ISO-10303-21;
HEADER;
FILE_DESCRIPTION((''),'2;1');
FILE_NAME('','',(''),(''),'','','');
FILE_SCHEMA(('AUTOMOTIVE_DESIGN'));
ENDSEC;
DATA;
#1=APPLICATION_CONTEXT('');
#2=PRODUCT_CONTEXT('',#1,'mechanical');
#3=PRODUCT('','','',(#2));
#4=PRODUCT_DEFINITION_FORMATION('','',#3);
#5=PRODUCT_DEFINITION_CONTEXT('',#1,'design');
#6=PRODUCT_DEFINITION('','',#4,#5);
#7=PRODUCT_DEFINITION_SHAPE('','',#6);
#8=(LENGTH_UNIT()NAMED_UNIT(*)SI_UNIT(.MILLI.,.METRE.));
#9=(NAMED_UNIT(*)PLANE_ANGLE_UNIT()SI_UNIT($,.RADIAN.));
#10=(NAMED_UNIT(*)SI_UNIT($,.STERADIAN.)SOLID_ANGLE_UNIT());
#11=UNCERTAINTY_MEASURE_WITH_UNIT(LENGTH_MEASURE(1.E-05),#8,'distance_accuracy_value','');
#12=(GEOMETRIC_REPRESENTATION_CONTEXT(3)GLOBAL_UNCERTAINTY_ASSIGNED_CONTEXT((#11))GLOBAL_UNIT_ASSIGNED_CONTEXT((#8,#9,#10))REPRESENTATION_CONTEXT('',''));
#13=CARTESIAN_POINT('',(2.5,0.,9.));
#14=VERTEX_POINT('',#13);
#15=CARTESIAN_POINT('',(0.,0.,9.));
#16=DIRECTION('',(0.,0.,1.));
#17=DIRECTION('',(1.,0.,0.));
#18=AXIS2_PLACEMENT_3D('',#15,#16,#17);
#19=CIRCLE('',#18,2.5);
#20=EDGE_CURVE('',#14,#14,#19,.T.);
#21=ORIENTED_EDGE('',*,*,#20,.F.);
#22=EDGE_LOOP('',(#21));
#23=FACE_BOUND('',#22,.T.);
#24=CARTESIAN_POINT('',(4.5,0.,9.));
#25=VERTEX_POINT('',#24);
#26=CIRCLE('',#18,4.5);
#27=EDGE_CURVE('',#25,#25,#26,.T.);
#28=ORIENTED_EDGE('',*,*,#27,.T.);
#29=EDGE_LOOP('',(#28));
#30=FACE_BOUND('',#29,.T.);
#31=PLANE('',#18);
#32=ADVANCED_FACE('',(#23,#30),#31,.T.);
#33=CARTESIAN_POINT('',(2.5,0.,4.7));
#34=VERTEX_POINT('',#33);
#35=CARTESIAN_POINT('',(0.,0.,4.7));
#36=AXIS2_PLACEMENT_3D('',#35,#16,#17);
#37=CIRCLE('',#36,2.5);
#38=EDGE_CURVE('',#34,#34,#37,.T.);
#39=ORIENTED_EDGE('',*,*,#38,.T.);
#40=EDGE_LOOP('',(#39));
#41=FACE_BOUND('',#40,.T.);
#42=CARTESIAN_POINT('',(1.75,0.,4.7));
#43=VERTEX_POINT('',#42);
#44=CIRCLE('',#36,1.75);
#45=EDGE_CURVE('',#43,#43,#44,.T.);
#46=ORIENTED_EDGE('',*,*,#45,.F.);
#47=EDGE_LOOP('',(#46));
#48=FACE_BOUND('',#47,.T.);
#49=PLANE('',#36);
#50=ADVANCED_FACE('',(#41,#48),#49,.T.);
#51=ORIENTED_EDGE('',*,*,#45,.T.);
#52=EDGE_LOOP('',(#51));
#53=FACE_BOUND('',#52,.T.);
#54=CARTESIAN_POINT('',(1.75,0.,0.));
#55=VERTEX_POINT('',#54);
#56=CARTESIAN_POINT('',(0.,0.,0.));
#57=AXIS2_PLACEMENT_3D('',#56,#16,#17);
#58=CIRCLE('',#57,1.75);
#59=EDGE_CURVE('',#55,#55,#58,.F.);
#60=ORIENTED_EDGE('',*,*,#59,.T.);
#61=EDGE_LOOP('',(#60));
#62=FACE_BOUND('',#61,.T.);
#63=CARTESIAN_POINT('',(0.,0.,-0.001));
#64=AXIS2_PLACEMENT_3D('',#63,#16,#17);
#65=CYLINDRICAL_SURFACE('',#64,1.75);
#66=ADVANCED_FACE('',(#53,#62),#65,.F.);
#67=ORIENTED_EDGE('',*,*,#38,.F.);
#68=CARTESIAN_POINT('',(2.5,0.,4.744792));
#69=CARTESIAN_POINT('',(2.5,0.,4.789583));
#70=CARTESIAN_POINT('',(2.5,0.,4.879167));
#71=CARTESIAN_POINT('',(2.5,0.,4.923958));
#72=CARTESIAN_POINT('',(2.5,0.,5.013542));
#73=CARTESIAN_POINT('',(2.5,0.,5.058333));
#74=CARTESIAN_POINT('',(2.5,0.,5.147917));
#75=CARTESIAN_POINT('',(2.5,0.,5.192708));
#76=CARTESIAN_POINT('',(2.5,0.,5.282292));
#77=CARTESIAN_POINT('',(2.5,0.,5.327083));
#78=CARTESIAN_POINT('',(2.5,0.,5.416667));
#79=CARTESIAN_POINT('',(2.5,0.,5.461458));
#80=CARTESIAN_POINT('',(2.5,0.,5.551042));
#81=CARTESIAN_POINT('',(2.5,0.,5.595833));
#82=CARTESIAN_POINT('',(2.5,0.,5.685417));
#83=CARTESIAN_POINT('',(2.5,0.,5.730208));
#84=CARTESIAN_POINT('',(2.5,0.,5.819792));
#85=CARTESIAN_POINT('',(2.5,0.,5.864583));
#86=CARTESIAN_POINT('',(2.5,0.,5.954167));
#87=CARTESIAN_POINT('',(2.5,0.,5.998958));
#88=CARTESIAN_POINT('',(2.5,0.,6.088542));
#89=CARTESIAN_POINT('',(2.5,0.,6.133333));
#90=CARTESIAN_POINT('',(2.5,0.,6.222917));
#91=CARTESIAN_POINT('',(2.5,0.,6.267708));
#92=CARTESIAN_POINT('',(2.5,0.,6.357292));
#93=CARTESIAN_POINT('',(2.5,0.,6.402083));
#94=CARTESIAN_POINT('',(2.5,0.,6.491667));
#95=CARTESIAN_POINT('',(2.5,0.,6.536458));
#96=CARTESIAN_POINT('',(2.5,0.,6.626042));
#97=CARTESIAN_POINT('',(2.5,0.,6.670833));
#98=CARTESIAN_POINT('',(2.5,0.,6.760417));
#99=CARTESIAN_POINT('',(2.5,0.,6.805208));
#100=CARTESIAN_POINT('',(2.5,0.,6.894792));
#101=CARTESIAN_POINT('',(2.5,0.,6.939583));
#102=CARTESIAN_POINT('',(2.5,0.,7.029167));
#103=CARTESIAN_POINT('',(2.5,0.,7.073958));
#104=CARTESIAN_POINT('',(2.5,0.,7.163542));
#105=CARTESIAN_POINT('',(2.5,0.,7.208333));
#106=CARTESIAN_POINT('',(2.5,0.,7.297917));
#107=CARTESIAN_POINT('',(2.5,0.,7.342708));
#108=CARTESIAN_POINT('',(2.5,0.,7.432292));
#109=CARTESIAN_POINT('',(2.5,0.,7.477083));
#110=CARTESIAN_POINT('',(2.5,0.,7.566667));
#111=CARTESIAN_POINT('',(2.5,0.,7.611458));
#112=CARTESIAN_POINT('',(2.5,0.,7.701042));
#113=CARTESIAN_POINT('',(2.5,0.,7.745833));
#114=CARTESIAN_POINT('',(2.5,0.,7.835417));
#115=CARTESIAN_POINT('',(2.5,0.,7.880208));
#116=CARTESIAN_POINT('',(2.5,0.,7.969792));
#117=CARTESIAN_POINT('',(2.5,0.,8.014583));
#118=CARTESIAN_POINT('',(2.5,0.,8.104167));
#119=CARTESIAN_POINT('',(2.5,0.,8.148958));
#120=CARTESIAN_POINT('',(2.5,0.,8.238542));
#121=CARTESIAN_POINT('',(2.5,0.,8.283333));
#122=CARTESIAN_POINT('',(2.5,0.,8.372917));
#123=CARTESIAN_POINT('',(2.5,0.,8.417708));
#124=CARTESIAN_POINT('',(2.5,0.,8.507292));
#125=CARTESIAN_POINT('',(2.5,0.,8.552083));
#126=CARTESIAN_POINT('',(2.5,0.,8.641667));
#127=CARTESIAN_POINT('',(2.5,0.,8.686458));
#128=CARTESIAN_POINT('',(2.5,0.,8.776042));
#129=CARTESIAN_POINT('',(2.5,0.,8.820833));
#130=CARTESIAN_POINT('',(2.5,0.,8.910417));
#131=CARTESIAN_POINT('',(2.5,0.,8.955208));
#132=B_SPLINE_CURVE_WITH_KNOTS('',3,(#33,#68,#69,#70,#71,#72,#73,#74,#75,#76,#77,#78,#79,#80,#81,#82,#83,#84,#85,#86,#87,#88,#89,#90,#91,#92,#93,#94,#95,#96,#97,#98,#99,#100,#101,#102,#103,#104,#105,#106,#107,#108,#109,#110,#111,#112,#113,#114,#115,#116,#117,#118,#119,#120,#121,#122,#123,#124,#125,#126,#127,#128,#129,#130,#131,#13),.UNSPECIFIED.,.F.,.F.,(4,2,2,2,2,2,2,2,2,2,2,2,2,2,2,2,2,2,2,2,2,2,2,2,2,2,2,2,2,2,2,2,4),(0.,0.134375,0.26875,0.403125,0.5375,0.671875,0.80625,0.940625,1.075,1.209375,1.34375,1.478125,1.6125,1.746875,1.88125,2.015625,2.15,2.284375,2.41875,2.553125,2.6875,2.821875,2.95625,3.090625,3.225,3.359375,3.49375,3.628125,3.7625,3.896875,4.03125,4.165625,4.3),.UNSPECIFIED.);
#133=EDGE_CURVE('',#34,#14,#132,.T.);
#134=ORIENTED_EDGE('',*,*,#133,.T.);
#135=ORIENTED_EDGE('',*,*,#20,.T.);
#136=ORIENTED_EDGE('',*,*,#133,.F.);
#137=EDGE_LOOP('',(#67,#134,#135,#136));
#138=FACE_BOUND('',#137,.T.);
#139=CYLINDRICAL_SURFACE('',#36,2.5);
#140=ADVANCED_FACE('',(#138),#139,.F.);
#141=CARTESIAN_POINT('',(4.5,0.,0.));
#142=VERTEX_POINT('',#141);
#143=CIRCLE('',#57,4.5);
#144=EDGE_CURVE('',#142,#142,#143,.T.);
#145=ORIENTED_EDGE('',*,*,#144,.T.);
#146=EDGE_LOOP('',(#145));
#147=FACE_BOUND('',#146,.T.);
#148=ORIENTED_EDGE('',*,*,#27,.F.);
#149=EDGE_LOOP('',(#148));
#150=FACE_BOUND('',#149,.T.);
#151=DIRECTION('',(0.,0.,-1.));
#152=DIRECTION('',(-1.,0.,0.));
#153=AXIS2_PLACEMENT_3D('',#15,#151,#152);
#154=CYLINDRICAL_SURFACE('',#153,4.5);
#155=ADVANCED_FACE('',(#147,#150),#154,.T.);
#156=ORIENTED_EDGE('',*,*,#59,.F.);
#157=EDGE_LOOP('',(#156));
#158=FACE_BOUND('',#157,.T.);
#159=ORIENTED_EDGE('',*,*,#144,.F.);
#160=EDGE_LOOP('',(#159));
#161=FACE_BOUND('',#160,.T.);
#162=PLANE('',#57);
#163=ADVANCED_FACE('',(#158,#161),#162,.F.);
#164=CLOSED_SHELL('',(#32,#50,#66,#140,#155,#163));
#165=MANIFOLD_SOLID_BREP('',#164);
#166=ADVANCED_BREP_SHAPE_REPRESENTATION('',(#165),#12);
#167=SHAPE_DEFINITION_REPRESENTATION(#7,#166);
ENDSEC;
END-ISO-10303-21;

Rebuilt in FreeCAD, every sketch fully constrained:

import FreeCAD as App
import Part
import Sketcher

V = App.Vector
Q = App.Units.Quantity

doc = App.newDocument("Part")
body = doc.addObject("PartDesign::Body", "Body")

sketch1 = body.newObject("Sketcher::SketchObject", "Sketch")
sketch1.AttachmentSupport = (doc.getObject("XY_Plane"), [""])
sketch1.MapMode = "FlatFace"
sketch1.addGeometry(Part.Circle(V(0, 0, 0), V(0, 0, 1), 4.5), False)
sketch1.addConstraint(Sketcher.Constraint("Coincident", 0, 3, -1, 1))
sketch1.addConstraint(Sketcher.Constraint("Diameter", 0, Q("9 mm")))
pad1 = body.newObject("PartDesign::Pad", "Pad")
pad1.Profile = sketch1
pad1.Length = 9

sketch2 = body.newObject("Sketcher::SketchObject", "Sketch001")
sketch2.AttachmentSupport = (doc.getObject("XY_Plane"), [""])
sketch2.MapMode = "FlatFace"
sketch2.AttachmentOffset = App.Placement(V(0, 0, 9), App.Rotation())
sketch2.addGeometry(Part.Circle(V(0, 0, 0), V(0, 0, 1), 2.5), False)
sketch2.addConstraint(Sketcher.Constraint("Coincident", 0, 3, -1, 1))
sketch2.addConstraint(Sketcher.Constraint("Diameter", 0, Q("5 mm")))
pocket1 = body.newObject("PartDesign::Pocket", "Pocket")
pocket1.Profile = sketch2
pocket1.Length = 4.3

sketch3 = body.newObject("Sketcher::SketchObject", "Sketch002")
sketch3.AttachmentSupport = (doc.getObject("XY_Plane"), [""])
sketch3.MapMode = "FlatFace"
sketch3.AttachmentOffset = App.Placement(V(0, 0, 4.7), App.Rotation())
sketch3.addGeometry(Part.Circle(V(0, 0, 0), V(0, 0, 1), 1.75), False)
sketch3.addConstraint(Sketcher.Constraint("Coincident", 0, 3, -1, 1))
sketch3.addConstraint(Sketcher.Constraint("Diameter", 0, Q("3.5 mm")))
pocket2 = body.newObject("PartDesign::Pocket", "Pocket001")
pocket2.Profile = sketch3
pocket2.Type = "UpToFirst"

doc.recompute()
